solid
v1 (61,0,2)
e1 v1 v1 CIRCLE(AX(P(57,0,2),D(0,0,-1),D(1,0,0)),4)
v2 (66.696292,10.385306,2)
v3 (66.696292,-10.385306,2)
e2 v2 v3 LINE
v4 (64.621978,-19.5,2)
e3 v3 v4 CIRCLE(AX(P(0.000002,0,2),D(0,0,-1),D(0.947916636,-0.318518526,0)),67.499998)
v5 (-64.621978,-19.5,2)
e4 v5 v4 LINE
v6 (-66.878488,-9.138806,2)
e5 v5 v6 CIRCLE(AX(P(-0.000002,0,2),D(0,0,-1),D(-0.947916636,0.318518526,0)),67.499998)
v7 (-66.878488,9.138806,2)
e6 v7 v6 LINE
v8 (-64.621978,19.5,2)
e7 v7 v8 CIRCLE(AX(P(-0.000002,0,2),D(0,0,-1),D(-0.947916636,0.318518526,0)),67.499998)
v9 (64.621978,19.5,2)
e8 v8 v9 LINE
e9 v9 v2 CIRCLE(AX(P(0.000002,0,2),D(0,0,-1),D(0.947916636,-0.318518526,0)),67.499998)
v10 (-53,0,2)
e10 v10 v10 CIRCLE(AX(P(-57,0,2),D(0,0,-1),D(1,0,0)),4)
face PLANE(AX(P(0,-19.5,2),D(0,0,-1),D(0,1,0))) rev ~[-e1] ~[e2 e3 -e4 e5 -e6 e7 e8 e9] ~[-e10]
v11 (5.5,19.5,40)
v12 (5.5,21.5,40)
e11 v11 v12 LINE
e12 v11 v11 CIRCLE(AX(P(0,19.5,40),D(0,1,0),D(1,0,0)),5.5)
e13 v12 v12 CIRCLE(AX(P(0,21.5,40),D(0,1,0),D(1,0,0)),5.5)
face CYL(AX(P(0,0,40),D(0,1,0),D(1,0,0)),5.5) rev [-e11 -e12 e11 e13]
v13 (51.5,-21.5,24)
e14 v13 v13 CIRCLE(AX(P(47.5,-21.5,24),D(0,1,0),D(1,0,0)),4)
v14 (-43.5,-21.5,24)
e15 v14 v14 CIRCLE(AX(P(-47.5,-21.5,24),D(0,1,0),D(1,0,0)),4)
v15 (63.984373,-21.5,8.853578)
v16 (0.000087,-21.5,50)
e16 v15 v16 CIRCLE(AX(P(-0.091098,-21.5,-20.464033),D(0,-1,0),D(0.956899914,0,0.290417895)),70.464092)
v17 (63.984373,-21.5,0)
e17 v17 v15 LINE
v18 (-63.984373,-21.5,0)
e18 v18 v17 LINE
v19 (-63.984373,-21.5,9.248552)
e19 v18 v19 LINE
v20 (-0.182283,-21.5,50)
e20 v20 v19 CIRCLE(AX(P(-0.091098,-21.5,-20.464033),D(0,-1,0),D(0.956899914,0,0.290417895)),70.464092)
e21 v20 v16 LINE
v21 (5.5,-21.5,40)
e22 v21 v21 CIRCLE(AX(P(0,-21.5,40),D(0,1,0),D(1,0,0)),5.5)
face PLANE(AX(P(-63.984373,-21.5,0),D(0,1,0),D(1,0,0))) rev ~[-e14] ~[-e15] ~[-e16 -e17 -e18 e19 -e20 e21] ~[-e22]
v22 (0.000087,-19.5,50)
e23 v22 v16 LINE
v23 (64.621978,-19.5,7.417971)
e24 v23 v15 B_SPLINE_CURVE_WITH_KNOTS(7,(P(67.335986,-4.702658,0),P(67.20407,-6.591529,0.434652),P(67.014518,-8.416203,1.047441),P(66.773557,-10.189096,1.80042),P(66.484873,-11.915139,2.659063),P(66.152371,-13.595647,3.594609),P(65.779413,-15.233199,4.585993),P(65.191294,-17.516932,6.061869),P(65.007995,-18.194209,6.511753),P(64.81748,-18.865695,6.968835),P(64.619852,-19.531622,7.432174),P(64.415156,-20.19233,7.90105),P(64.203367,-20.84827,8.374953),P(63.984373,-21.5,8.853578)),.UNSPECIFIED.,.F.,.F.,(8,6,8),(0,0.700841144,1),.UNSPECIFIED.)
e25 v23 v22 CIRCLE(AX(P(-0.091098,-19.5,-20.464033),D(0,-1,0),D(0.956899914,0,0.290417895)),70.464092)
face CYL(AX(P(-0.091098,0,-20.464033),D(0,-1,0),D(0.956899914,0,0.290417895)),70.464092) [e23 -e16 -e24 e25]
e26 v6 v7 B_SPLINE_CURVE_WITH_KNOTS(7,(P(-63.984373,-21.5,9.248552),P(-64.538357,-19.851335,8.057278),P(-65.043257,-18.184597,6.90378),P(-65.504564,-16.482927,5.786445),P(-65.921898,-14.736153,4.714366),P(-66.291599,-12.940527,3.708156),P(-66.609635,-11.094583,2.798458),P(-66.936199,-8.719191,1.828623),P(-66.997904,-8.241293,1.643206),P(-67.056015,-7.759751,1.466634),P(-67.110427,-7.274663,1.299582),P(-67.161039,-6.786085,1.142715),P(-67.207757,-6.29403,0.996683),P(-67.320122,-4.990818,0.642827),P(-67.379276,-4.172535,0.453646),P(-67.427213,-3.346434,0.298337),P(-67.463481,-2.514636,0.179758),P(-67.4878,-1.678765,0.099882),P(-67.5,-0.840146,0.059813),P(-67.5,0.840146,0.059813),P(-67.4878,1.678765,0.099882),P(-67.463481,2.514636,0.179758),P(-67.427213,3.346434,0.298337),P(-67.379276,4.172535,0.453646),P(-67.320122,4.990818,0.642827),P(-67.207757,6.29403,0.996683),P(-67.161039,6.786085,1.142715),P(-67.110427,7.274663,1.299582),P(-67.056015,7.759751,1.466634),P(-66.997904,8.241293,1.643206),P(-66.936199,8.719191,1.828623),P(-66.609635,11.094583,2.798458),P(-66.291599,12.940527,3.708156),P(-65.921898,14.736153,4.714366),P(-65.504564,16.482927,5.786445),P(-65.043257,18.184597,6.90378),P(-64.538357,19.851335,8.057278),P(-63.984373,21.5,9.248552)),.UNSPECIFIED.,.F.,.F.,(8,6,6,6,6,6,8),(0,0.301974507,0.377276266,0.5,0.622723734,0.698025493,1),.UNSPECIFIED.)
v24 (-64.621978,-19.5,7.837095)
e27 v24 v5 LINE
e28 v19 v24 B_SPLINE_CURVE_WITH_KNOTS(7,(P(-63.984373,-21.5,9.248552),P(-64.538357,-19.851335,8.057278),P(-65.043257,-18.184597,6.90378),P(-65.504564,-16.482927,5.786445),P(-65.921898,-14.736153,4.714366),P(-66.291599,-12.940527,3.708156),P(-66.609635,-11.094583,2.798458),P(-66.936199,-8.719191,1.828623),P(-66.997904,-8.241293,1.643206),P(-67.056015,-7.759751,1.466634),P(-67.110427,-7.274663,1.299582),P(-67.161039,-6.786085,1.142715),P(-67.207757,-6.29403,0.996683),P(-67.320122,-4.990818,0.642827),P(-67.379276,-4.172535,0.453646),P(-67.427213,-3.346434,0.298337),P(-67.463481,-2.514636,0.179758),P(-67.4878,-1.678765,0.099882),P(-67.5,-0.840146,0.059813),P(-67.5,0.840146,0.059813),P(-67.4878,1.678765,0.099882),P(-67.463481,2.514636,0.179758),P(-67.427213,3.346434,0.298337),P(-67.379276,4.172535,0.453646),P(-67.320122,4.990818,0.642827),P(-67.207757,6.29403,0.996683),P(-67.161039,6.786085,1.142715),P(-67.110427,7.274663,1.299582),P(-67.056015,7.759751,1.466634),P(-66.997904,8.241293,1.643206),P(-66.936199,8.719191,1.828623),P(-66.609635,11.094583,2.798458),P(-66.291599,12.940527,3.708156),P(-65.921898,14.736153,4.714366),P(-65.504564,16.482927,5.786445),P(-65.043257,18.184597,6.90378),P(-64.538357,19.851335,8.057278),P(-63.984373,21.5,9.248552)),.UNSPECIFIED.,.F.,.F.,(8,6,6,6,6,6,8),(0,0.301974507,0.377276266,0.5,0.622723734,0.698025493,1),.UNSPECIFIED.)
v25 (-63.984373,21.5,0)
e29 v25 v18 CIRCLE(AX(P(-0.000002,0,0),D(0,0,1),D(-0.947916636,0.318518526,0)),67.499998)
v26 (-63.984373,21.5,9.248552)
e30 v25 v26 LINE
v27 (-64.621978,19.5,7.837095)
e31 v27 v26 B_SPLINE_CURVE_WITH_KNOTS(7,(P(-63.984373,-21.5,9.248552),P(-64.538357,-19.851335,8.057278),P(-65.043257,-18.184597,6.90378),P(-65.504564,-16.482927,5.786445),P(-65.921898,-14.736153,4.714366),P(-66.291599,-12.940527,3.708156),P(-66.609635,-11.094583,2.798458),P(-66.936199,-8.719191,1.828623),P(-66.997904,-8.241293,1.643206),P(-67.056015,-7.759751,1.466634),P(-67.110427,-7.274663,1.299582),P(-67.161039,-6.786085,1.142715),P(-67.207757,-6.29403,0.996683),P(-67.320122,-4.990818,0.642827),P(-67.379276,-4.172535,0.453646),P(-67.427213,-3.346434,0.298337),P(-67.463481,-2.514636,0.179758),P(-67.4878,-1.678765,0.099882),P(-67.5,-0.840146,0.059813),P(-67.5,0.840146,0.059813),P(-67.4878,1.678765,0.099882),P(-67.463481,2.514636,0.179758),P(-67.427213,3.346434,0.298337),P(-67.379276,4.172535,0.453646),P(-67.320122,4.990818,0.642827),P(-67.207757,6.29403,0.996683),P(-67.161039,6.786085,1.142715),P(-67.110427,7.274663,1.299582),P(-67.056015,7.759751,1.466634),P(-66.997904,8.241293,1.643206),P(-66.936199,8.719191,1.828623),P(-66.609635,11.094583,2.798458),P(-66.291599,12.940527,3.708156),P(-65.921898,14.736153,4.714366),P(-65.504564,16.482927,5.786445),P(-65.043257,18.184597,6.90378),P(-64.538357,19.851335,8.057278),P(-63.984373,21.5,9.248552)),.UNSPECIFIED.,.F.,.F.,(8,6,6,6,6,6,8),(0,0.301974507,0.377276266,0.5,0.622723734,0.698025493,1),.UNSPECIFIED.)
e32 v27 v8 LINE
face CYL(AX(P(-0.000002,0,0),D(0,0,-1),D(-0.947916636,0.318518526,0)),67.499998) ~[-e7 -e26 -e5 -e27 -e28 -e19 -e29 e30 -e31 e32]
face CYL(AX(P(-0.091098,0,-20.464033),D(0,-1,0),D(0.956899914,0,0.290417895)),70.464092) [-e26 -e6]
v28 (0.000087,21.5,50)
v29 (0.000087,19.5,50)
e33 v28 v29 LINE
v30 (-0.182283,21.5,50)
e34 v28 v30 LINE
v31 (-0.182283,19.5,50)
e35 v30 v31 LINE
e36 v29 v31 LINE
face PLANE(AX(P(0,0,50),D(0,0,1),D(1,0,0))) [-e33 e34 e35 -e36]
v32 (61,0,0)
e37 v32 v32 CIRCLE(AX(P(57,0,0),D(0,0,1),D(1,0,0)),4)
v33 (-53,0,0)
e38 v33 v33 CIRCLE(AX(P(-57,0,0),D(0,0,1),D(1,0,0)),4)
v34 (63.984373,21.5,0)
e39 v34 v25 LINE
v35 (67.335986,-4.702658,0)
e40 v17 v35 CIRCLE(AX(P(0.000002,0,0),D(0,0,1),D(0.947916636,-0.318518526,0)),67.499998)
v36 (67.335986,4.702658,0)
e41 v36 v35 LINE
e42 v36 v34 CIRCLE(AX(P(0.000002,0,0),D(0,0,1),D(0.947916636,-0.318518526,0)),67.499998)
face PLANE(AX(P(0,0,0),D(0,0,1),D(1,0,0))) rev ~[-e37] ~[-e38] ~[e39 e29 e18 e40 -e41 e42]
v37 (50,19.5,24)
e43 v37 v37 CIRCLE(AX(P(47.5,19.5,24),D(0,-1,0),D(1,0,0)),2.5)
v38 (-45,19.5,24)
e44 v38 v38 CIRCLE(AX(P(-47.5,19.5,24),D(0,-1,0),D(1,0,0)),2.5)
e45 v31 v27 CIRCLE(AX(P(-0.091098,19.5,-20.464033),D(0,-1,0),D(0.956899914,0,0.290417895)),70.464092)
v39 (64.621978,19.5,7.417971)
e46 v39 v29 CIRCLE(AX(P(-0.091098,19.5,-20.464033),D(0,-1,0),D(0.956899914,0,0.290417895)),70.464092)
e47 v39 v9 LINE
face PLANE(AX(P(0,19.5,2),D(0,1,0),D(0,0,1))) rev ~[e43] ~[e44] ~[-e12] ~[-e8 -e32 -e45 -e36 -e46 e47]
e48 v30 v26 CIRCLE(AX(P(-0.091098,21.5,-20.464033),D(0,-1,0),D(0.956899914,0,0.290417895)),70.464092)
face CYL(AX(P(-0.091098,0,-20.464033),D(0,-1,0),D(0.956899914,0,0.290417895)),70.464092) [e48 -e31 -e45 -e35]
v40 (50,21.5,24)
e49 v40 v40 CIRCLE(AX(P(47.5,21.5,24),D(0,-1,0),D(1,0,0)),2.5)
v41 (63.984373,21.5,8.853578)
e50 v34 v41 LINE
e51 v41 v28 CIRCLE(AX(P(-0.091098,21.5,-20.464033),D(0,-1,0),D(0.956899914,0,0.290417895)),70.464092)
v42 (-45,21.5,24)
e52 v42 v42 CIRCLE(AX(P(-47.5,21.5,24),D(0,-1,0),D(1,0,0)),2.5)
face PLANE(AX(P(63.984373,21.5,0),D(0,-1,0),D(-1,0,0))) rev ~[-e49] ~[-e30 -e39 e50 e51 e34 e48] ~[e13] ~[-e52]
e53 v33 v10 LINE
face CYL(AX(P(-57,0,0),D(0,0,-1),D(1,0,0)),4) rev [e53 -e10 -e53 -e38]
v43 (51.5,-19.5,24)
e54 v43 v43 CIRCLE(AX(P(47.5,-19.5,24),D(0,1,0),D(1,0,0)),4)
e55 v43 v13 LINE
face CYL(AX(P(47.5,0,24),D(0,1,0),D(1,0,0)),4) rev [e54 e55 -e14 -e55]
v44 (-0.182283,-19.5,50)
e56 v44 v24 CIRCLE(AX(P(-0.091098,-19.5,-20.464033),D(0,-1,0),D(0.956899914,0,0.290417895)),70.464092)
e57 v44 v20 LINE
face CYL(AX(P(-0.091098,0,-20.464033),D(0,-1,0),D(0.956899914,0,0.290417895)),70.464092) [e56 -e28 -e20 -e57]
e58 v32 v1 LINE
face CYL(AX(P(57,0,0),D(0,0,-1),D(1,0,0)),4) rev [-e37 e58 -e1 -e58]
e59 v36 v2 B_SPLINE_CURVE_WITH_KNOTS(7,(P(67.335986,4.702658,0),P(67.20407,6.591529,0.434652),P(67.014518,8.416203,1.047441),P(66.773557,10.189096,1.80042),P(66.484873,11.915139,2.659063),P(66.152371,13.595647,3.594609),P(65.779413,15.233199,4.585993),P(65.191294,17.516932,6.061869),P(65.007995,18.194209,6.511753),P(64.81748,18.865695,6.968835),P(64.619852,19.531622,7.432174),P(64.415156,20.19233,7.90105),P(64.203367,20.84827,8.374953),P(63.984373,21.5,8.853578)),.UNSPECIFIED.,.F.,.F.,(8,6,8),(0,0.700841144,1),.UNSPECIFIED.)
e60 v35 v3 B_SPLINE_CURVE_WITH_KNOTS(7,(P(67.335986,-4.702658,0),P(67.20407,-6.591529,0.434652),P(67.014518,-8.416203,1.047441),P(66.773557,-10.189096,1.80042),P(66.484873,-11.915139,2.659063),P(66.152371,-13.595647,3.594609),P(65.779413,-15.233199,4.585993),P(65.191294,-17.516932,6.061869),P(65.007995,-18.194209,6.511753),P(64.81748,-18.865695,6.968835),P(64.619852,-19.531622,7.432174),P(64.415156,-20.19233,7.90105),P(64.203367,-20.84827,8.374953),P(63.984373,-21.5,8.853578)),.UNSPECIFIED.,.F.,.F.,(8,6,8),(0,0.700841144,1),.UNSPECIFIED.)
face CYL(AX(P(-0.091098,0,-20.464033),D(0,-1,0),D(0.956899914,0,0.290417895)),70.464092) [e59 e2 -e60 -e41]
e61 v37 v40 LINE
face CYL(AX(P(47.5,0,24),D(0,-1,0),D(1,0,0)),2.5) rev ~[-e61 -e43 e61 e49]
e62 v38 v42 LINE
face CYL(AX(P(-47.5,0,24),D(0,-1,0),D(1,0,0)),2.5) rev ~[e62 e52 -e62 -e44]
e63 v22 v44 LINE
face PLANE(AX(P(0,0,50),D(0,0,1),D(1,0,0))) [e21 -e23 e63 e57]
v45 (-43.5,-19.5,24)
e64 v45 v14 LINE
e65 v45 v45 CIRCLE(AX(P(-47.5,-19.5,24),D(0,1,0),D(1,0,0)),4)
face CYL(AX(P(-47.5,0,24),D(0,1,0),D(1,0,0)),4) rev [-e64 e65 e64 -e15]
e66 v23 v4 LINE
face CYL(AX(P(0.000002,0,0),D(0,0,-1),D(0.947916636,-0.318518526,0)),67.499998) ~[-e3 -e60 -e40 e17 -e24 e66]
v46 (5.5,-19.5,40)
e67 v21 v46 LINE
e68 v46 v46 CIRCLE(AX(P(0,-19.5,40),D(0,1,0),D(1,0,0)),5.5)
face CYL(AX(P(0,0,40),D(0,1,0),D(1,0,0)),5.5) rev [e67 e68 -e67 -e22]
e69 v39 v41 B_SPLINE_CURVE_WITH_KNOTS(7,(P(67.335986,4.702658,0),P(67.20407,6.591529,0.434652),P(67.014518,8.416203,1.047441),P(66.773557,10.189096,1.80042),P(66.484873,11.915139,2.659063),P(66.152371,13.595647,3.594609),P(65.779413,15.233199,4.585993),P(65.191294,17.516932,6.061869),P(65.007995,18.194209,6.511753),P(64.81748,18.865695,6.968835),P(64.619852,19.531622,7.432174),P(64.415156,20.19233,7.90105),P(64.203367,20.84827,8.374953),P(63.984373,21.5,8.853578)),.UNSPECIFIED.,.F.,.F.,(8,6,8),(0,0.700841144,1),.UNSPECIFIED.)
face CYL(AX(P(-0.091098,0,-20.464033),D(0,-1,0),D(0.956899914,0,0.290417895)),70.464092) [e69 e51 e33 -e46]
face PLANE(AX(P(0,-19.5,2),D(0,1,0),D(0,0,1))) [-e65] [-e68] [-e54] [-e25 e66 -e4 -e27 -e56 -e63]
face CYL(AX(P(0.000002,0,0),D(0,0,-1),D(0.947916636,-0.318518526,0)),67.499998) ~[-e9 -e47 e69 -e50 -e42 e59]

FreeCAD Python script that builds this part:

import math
import FreeCAD as App
import Part
import Sketcher

doc = App.newDocument("Part")
params = doc.addObject("Spreadsheet::Sheet", "Params")
for row, (alias, value) in enumerate([
    ("sketch1_radius", "67.499998 mm"),
    ("pad1_length", "50 mm"),
    ("sketch2_diameter", "11 mm"),
    ("pad2_length", "45 mm"),
    ("sketch3_width", "39 mm"),
    ("sketch3_height", "50 mm"),
    ("pocket1_length", "180 mm"),
    ("sketch4_diameter", "8 mm"),
    ("sketch5_diameter", "5 mm"),
    ("pocket3_length", "50 mm"),
    ("sketch6_diameter", "8 mm"),
    ("pocket4_length", "40 mm"),
], start=1):
    params.set(f"A{row}", alias)
    params.set(f"B{row}", "=" + value)
    params.setAlias(f"B{row}", alias)

body = doc.addObject("PartDesign::Body", "Body")

# Sketch on XY plane
sketch1 = body.newObject("Sketcher::SketchObject", "Sketch")
sketch1.AttachmentSupport = (doc.getObject("XY_Plane"), [""])
sketch1.MapMode = "FlatFace"
sketch1.addGeometry(Part.ArcOfCircle(Part.Circle(App.Vector(0, 0, 0), App.Vector(0, 0, 1), 67), math.radians(-19), math.radians(19)), False)
sketch1.addGeometry(Part.LineSegment(App.Vector(64, 22, 0), App.Vector(-64, 22, 0)), False)
sketch1.addGeometry(Part.ArcOfCircle(Part.Circle(App.Vector(0, 0, 0), App.Vector(0, 0, 1), 67), math.radians(161), math.radians(199)), False)
sketch1.addGeometry(Part.LineSegment(App.Vector(-64, -22, 0), App.Vector(64, -22, 0)), False)
sketch1.addConstraint(Sketcher.Constraint("Coincident", 0, 2, 1, 1))
sketch1.addConstraint(Sketcher.Constraint("Coincident", 1, 2, 2, 1))
sketch1.addConstraint(Sketcher.Constraint("Coincident", 2, 2, 3, 1))
sketch1.addConstraint(Sketcher.Constraint("Coincident", 3, 2, 0, 1))
sketch1.addConstraint(Sketcher.Constraint("Horizontal", 1))
sketch1.addConstraint(Sketcher.Constraint("Horizontal", 3))
sketch1.addConstraint(Sketcher.Constraint("Coincident", 0, 3, -1, 1))
sketch1.addConstraint(Sketcher.Constraint("Coincident", 2, 3, -1, 1))
sketch1.addConstraint(Sketcher.Constraint("Equal", 0, 2))
sketch1.addConstraint(Sketcher.Constraint("Vertical", 1, 2, 2, 2))
sketch1.addConstraint(Sketcher.Constraint("Radius", 0, 67.499998))
sketch1.addConstraint(Sketcher.Constraint("DistanceY", 2, 2, 1, 2, 43.0))
sketch1.setExpression("Constraints[10]", "Params.sketch1_radius")
pad1 = body.newObject("PartDesign::Pad", "Pad")
pad1.Profile = sketch1
pad1.setExpression("Length", "Params.pad1_length")
body2 = doc.addObject("PartDesign::Body", "Body001")

# Sketch on XZ plane
sketch2 = body2.newObject("Sketcher::SketchObject", "Sketch001")
sketch2.AttachmentSupport = (doc.getObject("XZ_Plane001"), [""])
sketch2.MapMode = "FlatFace"
sketch2.addGeometry(Part.LineSegment(App.Vector(-68, 0, 0), App.Vector(67, 0, 0)), False)
sketch2.addGeometry(Part.ArcOfCircle(Part.Circle(App.Vector(0, -20, 0), App.Vector(0, 0, 1), 70), math.radians(17), math.radians(163)), False)
sketch2.addGeometry(Part.Circle(App.Vector(0, 40, 0), App.Vector(0, 0, 1), 6), False)
sketch2.addConstraint(Sketcher.Constraint("Coincident", 0, 1, 1, 2))
sketch2.addConstraint(Sketcher.Constraint("Coincident", 1, 1, 0, 2))
sketch2.addConstraint(Sketcher.Constraint("Horizontal", 0))
sketch2.addConstraint(Sketcher.Constraint("PointOnObject", 2, 3, -2))
sketch2.addConstraint(Sketcher.Constraint("PointOnObject", 0, 1, -1))
sketch2.addConstraint(Sketcher.Constraint("Diameter", 2, 11.0))
sketch2.addConstraint(Sketcher.Constraint("DistanceY", -1, 1, 2, 3, 40.0))
sketch2.addConstraint(Sketcher.Constraint("Radius", 1, 70.464092))
sketch2.addConstraint(Sketcher.Constraint("DistanceX", 0, 1, 0, 2, 134.854168))
sketch2.addConstraint(Sketcher.Constraint("DistanceX", 0, 1, -1, 1, 67.518182))
sketch2.setExpression("Constraints[5]", "Params.sketch2_diameter")
pad2 = body2.newObject("PartDesign::Pad", "Pad001")
pad2.Profile = sketch2
pad2.setExpression("Length", "Params.pad2_length")
pad2.Midplane = True
doc.recompute()

boolean = body.newObject("PartDesign::Boolean", "Boolean")
boolean.Type = "Common"
boolean.addObjects([body2])

# Sketch on YZ plane
sketch3 = body.newObject("Sketcher::SketchObject", "Sketch002")
sketch3.AttachmentSupport = (doc.getObject("YZ_Plane"), [""])
sketch3.MapMode = "FlatFace"
sketch3.addGeometry(Part.LineSegment(App.Vector(-20, 52, 0), App.Vector(-20, 2, 0)), False)
sketch3.addGeometry(Part.LineSegment(App.Vector(-20, 2, 0), App.Vector(20, 2, 0)), False)
sketch3.addGeometry(Part.LineSegment(App.Vector(20, 2, 0), App.Vector(20, 52, 0)), False)
sketch3.addGeometry(Part.LineSegment(App.Vector(20, 52, 0), App.Vector(-20, 52, 0)), False)
sketch3.addConstraint(Sketcher.Constraint("Coincident", 0, 2, 1, 1))
sketch3.addConstraint(Sketcher.Constraint("Coincident", 1, 2, 2, 1))
sketch3.addConstraint(Sketcher.Constraint("Coincident", 2, 2, 3, 1))
sketch3.addConstraint(Sketcher.Constraint("Coincident", 3, 2, 0, 1))
sketch3.addConstraint(Sketcher.Constraint("Vertical", 0))
sketch3.addConstraint(Sketcher.Constraint("Horizontal", 1))
sketch3.addConstraint(Sketcher.Constraint("Vertical", 2))
sketch3.addConstraint(Sketcher.Constraint("Horizontal", 3))
sketch3.addConstraint(Sketcher.Constraint("DistanceX", 1, 1, 1, 2, 39.0))
sketch3.addConstraint(Sketcher.Constraint("DistanceY", 0, 2, 0, 1, 50.0))
sketch3.addConstraint(Sketcher.Constraint("DistanceY", -1, 1, 0, 2, 2.0))
sketch3.addConstraint(Sketcher.Constraint("DistanceX", 0, 2, -1, 1, 19.5))
sketch3.setExpression("Constraints[8]", "Params.sketch3_width")
sketch3.setExpression("Constraints[9]", "Params.sketch3_height")
pocket1 = body.newObject("PartDesign::Pocket", "Pocket")
pocket1.Profile = sketch3
pocket1.setExpression("Length", "Params.pocket1_length")
pocket1.Midplane = True

# Sketch on XY plane
sketch4 = body.newObject("Sketcher::SketchObject", "Sketch003")
sketch4.AttachmentSupport = (doc.getObject("XY_Plane"), [""])
sketch4.MapMode = "FlatFace"
sketch4.addGeometry(Part.Circle(App.Vector(57, 0, 0), App.Vector(0, 0, 1), 4), False)
sketch4.addGeometry(Part.Circle(App.Vector(-57, 0, 0), App.Vector(0, 0, 1), 4), False)
sketch4.addConstraint(Sketcher.Constraint("Equal", 0, 1))
sketch4.addConstraint(Sketcher.Constraint("Symmetric", 0, 3, 1, 3, -1, 1))
sketch4.addConstraint(Sketcher.Constraint("PointOnObject", 0, 3, -1))
sketch4.addConstraint(Sketcher.Constraint("Diameter", 0, 8.0))
sketch4.addConstraint(Sketcher.Constraint("DistanceX", -1, 1, 0, 3, 57.0))
sketch4.setExpression("Constraints[3]", "Params.sketch4_diameter")
pocket2 = body.newObject("PartDesign::Pocket", "Pocket001")
pocket2.Profile = sketch4
pocket2.Type = "ThroughAll"
pocket2.Reversed = True

# Sketch on XZ plane
sketch5 = body.newObject("Sketcher::SketchObject", "Sketch004")
sketch5.AttachmentSupport = (doc.getObject("XZ_Plane"), [""])
sketch5.MapMode = "FlatFace"
sketch5.addGeometry(Part.Circle(App.Vector(-47.5, 24, 0), App.Vector(0, 0, 1), 2.5), False)
sketch5.addGeometry(Part.Circle(App.Vector(47.5, 24, 0), App.Vector(0, 0, 1), 2.5), False)
sketch5.addConstraint(Sketcher.Constraint("Equal", 0, 1))
sketch5.addConstraint(Sketcher.Constraint("Symmetric", 0, 3, 1, 3, -2))
sketch5.addConstraint(Sketcher.Constraint("Diameter", 0, 5.0))
sketch5.addConstraint(Sketcher.Constraint("DistanceY", -1, 1, 0, 3, 24.0))
sketch5.addConstraint(Sketcher.Constraint("DistanceX", 0, 3, 1, 3, 95.0))
sketch5.setExpression("Constraints[2]", "Params.sketch5_diameter")
pocket3 = body.newObject("PartDesign::Pocket", "Pocket002")
pocket3.Profile = sketch5
pocket3.setExpression("Length", "Params.pocket3_length")

# Sketch on XZ plane
sketch6 = body.newObject("Sketcher::SketchObject", "Sketch005")
sketch6.AttachmentSupport = (doc.getObject("XZ_Plane"), [""])
sketch6.MapMode = "FlatFace"
sketch6.addGeometry(Part.Circle(App.Vector(47.5, 24, 0), App.Vector(0, 0, 1), 4), False)
sketch6.addGeometry(Part.Circle(App.Vector(-47.5, 24, 0), App.Vector(0, 0, 1), 4), False)
sketch6.addConstraint(Sketcher.Constraint("Equal", 0, 1))
sketch6.addConstraint(Sketcher.Constraint("Symmetric", 0, 3, 1, 3, -2))
sketch6.addConstraint(Sketcher.Constraint("Diameter", 0, 8.0))
sketch6.addConstraint(Sketcher.Constraint("DistanceY", -1, 1, 0, 3, 24.0))
sketch6.addConstraint(Sketcher.Constraint("DistanceX", 1, 3, 0, 3, 95.0))
sketch6.setExpression("Constraints[2]", "Params.sketch6_diameter")
pocket4 = body.newObject("PartDesign::Pocket", "Pocket003")
pocket4.Profile = sketch6
pocket4.setExpression("Length", "Params.pocket4_length")
pocket4.Reversed = True

doc.recompute()
